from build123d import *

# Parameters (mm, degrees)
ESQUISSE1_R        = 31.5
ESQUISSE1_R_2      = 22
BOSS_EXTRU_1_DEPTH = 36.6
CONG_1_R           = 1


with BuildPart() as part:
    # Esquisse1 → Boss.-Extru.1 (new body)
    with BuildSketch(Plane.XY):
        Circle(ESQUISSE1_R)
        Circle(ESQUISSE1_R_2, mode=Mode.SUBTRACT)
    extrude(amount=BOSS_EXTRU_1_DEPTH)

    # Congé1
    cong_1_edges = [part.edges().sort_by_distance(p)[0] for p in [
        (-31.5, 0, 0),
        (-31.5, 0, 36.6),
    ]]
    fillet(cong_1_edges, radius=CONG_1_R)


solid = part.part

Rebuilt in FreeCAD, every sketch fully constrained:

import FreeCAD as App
import Part
import Sketcher
from FreeCAD import Vector


def edges_at(feature, points):
    """Names of the edges that pass closest to the given points."""
    edges = feature.Shape.Edges
    near = lambda p: min(range(len(edges)), key=lambda i: edges[i].distToShape(Part.Vertex(*p))[0])
    return sorted({f"Edge{near(p) + 1}" for p in points})

doc = App.newDocument("Part")
params = doc.addObject("Spreadsheet::Sheet", "Params")
for row, (alias, value) in enumerate([
    ("sketch1_diameter", "63 mm"),
    ("sketch1_diameter2", "44 mm"),
    ("pad1_length", "36.6 mm"),
    ("fillet_radius", "1 mm"),
], start=1):
    params.set(f"A{row}", alias)
    params.set(f"B{row}", "=" + value)
    params.setAlias(f"B{row}", alias)

body = doc.addObject("PartDesign::Body", "Body")

sketch1 = body.newObject("Sketcher::SketchObject", "Sketch")
sketch1.AttachmentSupport = (doc.getObject("XY_Plane"), [""])
sketch1.MapMode = "FlatFace"
sketch1.addGeometry([
    Part.Circle(Vector(0, 0, 0), Vector(0, 0, 1), 32),
    Part.Circle(Vector(0, 0, 0), Vector(0, 0, 1), 22),
], False)
sketch1.addConstraint([
    Sketcher.Constraint("Coincident", 0, 3, -1, 1),
    Sketcher.Constraint("Coincident", 1, 3, -1, 1),
    Sketcher.Constraint("Diameter", 0, 63.0),
    Sketcher.Constraint("Diameter", 1, 44.0),
])
sketch1.setExpression("Constraints[2]", "Params.sketch1_diameter")
sketch1.setExpression("Constraints[3]", "Params.sketch1_diameter2")
pad1 = body.newObject("PartDesign::Pad", "Pad")
pad1.Profile = sketch1
pad1.setExpression("Length", "Params.pad1_length")
doc.recompute()

fillet = body.newObject("PartDesign::Fillet", "Fillet")
fillet.Base = (pad1, edges_at(pad1, [(-31.5, 0, 0), (-31.5, 0, 36.6)]))
fillet.setExpression("Radius", "Params.fillet_radius")

doc.recompute()
